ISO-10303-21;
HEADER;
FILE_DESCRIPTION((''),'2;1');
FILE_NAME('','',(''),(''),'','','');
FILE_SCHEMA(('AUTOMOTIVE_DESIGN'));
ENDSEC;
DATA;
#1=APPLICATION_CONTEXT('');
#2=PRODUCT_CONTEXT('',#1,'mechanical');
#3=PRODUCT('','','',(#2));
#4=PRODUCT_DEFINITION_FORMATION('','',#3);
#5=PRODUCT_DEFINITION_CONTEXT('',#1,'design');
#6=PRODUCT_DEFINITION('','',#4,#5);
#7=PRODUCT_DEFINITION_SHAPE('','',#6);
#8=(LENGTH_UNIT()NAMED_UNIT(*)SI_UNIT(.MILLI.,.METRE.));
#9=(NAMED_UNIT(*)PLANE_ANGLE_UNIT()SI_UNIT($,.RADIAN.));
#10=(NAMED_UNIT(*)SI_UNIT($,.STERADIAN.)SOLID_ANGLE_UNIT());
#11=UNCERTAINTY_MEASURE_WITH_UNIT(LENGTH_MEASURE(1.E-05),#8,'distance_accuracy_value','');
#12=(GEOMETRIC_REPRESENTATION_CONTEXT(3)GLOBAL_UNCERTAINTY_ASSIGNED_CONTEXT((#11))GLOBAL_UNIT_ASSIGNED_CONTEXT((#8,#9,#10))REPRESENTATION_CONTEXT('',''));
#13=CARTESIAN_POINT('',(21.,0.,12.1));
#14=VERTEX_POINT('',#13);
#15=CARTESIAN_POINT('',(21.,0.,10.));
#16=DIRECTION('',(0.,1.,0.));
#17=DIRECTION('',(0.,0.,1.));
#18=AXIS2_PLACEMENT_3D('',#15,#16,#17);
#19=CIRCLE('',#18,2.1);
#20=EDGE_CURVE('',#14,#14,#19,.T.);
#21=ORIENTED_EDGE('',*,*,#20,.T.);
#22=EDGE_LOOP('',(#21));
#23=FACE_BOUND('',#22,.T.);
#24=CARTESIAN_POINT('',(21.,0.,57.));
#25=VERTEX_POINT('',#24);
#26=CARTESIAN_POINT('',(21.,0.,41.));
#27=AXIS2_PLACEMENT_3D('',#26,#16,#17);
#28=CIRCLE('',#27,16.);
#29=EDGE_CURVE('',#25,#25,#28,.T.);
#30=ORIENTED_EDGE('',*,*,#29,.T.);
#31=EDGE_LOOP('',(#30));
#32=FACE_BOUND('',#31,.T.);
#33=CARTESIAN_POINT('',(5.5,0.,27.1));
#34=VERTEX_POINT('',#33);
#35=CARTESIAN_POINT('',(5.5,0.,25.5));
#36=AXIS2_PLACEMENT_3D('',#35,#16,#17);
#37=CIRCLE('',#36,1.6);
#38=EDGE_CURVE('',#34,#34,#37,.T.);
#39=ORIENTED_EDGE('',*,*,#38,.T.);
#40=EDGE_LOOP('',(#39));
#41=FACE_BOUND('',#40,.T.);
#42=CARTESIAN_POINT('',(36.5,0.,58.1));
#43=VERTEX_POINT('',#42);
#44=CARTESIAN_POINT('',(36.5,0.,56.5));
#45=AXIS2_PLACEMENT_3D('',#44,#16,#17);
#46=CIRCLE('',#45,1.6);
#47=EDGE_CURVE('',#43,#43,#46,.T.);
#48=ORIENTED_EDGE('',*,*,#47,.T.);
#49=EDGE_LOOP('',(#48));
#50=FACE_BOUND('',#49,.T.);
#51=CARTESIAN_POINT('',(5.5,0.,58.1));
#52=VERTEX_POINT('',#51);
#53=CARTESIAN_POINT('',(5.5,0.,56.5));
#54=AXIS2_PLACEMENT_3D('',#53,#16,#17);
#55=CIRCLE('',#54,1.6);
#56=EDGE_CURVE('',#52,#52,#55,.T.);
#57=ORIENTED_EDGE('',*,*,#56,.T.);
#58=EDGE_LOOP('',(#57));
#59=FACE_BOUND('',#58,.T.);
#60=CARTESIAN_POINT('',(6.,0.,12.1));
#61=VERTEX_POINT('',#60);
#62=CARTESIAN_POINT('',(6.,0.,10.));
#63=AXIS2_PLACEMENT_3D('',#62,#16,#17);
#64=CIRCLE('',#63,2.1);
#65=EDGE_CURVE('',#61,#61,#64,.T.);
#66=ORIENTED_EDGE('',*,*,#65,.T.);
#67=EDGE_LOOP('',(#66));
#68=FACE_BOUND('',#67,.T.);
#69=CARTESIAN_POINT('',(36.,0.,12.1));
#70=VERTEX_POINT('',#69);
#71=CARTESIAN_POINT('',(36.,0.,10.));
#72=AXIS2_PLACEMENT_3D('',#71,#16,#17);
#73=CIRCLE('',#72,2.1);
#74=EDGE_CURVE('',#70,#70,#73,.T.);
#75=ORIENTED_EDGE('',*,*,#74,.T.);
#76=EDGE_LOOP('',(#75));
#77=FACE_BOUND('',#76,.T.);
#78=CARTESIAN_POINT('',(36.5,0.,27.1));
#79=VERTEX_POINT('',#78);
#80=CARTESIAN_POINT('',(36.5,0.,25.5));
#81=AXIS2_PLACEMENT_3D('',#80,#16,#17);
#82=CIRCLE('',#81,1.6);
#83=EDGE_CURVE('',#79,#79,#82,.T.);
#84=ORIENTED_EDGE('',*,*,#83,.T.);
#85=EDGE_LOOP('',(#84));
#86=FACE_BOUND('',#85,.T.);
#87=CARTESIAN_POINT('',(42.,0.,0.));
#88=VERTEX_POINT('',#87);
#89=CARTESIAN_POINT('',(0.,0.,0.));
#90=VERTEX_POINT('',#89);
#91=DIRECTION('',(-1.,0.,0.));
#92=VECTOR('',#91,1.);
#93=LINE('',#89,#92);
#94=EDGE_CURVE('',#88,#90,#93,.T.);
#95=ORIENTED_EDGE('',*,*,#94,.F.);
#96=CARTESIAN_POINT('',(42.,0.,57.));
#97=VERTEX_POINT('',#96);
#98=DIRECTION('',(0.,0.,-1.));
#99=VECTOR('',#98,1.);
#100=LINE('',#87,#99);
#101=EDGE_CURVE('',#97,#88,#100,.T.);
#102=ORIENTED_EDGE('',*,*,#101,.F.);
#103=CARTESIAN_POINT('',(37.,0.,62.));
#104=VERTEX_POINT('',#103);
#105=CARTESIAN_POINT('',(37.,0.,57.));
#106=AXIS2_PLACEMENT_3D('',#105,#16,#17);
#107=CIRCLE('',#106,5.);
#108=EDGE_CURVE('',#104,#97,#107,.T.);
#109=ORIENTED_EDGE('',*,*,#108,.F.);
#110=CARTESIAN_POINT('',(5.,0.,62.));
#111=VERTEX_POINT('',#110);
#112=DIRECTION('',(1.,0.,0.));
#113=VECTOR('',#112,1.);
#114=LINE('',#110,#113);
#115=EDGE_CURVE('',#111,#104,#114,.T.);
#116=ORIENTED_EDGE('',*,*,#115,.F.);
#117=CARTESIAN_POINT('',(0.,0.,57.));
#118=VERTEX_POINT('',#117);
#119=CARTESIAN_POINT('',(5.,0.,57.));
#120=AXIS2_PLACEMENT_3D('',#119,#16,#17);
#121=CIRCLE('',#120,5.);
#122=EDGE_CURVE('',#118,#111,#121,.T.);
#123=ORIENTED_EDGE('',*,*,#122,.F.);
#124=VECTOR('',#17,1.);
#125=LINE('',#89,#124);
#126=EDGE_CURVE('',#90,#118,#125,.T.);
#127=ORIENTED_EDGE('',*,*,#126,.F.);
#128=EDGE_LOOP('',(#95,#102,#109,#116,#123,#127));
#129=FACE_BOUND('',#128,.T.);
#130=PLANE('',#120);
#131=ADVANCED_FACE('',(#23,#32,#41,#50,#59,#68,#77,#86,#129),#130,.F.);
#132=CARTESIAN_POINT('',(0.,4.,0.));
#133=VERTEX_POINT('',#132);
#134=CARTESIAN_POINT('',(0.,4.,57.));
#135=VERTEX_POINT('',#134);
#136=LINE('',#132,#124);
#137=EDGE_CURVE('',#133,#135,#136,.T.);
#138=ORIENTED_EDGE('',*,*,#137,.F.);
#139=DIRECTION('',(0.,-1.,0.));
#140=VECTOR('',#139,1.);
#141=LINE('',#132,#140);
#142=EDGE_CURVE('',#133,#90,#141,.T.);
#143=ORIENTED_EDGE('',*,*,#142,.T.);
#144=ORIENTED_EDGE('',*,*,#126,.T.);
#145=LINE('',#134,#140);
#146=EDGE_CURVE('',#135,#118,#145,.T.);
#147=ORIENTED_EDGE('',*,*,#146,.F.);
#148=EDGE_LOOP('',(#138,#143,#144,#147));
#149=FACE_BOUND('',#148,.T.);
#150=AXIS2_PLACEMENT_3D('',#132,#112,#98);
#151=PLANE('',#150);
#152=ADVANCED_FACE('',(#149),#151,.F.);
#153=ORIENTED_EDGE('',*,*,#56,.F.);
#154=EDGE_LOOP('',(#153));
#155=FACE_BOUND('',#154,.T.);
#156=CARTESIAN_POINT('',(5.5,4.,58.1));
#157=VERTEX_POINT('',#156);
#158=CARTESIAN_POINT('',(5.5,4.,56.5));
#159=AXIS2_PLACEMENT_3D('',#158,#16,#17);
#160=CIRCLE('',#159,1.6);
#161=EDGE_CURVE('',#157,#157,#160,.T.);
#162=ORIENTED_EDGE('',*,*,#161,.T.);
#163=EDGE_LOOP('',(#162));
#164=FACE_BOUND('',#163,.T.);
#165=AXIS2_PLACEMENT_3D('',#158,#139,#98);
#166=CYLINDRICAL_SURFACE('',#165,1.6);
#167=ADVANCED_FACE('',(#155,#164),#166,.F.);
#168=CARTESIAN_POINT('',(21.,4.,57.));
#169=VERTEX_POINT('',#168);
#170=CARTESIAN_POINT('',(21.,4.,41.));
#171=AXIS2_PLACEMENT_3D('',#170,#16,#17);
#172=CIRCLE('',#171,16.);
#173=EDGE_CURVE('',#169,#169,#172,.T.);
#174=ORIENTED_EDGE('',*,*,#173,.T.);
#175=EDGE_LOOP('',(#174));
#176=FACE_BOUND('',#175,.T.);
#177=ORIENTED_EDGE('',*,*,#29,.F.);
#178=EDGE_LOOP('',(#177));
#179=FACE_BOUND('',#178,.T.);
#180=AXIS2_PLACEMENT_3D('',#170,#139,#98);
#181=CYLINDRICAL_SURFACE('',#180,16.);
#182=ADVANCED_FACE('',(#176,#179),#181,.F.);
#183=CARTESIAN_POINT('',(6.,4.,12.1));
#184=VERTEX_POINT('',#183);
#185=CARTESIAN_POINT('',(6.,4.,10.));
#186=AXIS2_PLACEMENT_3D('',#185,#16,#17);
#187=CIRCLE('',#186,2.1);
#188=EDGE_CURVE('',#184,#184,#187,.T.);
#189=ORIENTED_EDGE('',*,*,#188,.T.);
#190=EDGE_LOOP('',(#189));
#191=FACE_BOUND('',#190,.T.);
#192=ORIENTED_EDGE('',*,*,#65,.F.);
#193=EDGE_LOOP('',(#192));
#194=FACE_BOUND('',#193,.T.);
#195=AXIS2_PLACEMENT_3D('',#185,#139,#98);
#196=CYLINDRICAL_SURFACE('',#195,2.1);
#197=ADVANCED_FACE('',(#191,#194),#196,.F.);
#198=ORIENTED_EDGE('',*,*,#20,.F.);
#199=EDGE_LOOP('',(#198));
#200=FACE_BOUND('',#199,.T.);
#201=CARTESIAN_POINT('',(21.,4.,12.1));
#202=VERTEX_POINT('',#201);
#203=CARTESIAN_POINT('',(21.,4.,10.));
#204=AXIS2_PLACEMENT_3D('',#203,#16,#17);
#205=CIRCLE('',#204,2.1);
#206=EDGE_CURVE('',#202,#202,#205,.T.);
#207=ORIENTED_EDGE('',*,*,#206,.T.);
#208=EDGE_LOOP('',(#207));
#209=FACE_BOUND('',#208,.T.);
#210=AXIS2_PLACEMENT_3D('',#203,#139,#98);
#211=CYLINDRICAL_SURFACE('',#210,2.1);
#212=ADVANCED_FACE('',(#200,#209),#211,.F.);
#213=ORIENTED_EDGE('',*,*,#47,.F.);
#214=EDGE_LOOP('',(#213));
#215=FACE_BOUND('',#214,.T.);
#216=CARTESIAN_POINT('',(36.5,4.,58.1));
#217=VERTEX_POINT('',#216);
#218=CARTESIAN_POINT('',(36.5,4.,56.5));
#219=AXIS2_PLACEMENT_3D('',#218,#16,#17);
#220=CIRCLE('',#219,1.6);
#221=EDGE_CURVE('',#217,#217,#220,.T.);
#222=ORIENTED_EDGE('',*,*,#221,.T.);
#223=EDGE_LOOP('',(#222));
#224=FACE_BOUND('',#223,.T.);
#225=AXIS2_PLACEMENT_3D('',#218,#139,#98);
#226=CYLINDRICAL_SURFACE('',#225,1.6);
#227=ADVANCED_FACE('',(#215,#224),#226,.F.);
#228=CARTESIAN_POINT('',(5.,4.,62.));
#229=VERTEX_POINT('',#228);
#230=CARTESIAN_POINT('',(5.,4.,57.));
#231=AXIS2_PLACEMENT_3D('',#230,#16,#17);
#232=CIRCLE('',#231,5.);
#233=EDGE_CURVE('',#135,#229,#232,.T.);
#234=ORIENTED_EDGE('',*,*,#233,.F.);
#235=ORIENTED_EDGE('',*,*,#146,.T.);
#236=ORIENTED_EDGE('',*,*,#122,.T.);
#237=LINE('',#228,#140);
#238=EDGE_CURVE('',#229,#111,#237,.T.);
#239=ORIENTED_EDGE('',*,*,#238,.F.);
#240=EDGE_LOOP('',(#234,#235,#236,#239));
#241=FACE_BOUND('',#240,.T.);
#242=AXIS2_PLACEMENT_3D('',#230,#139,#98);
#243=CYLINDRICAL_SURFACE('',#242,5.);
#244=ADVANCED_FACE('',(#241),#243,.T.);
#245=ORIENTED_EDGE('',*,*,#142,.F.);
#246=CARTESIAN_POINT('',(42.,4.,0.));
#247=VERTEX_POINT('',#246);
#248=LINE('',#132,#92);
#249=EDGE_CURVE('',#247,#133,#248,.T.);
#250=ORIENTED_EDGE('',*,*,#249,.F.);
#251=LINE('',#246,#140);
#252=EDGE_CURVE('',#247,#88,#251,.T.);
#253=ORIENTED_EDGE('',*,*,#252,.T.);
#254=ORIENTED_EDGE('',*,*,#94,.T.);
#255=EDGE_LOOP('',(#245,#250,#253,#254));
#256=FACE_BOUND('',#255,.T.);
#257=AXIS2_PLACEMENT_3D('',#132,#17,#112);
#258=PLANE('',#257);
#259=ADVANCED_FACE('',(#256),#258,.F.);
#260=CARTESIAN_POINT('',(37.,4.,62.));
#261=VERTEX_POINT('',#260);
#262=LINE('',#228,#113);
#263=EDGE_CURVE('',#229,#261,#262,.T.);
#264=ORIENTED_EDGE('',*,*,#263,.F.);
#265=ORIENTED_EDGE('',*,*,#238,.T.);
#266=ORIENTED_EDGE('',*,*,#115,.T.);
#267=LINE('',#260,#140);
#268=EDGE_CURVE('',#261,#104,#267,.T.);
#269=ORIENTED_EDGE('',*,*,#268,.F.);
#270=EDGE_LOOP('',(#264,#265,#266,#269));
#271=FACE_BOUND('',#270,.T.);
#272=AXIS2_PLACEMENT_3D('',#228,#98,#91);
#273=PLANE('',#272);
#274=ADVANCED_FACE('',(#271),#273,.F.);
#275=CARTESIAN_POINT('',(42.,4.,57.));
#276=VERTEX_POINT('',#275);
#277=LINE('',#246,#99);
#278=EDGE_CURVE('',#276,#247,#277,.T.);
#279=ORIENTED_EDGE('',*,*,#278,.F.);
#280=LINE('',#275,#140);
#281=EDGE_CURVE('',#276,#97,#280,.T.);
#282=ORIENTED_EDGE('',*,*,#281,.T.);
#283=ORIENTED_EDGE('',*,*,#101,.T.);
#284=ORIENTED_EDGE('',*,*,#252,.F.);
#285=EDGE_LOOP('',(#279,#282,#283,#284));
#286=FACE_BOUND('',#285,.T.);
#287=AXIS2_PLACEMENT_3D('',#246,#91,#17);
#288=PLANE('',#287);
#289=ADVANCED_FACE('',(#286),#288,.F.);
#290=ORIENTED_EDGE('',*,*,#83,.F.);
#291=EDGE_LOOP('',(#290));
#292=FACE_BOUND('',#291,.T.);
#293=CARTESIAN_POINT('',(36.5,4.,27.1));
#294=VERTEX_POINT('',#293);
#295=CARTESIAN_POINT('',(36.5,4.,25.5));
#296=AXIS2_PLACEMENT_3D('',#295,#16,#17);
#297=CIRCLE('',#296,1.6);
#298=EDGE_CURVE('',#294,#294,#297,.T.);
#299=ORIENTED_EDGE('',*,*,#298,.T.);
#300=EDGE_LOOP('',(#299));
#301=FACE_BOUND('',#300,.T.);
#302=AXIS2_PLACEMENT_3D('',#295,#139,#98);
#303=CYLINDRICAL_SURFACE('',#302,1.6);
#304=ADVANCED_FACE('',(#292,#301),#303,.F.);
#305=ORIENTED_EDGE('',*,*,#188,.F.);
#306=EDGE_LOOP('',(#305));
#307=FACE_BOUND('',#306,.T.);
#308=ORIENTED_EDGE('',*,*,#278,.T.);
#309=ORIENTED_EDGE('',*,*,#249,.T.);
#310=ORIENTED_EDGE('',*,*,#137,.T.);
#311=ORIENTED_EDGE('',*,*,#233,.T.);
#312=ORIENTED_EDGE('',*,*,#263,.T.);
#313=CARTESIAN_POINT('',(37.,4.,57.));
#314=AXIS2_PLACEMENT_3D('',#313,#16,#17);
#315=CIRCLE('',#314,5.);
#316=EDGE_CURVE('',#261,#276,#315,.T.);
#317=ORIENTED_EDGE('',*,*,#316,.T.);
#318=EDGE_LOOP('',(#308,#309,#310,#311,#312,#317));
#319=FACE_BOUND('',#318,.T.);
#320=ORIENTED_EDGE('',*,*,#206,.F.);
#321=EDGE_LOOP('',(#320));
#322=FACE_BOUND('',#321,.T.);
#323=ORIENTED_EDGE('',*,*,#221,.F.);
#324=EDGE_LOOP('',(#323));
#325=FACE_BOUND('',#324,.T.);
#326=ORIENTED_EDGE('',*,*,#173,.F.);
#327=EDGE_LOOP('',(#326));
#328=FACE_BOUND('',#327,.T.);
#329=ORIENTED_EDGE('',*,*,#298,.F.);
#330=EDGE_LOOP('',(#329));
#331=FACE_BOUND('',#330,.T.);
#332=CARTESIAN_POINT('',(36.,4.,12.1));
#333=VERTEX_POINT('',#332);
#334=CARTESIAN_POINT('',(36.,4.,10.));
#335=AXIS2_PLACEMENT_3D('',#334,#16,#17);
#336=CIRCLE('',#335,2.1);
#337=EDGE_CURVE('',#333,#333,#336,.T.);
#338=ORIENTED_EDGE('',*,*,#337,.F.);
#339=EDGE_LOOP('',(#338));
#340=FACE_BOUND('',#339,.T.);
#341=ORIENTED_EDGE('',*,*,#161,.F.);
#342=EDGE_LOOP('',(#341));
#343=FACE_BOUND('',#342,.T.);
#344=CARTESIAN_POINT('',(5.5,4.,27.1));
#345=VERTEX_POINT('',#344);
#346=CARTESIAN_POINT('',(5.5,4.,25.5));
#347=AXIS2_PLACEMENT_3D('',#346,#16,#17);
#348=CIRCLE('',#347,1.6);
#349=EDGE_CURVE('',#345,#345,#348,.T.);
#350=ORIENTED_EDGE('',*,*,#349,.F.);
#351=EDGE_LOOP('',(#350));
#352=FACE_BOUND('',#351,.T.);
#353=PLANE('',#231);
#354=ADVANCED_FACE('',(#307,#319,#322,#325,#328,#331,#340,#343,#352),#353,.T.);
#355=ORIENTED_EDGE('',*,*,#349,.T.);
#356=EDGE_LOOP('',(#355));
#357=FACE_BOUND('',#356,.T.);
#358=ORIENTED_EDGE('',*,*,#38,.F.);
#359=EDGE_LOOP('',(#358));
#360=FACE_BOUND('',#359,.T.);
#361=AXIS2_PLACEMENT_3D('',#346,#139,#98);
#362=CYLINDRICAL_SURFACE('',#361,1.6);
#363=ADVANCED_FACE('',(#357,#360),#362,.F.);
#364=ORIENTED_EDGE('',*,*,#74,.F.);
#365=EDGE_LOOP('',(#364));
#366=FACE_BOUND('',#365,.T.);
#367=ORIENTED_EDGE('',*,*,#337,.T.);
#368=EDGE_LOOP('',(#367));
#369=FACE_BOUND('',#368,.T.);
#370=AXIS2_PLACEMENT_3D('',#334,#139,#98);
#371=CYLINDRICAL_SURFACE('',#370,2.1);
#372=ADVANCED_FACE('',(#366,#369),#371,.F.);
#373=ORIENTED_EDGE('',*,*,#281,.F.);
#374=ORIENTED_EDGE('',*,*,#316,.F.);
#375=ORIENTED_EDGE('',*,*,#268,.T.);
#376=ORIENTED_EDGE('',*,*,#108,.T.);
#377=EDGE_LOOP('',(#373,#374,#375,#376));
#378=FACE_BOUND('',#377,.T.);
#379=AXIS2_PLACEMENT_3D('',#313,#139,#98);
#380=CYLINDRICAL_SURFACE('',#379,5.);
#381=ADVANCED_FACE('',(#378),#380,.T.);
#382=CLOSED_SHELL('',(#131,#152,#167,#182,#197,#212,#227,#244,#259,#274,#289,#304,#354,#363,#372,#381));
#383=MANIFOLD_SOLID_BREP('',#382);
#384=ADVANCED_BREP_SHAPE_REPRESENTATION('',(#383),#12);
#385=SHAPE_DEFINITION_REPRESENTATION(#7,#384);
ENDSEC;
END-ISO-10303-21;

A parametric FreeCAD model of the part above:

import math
import FreeCAD as App
import Part
import Sketcher
Q = App.Units.Quantity

doc = App.newDocument("Part")
body = doc.addObject("PartDesign::Body", "Body")

# Sketch on XZ plane
sketch1 = body.newObject("Sketcher::SketchObject", "Sketch")
sketch1.AttachmentSupport = (doc.getObject("XZ_Plane"), [""])
sketch1.MapMode = "FlatFace"
sketch1.addGeometry([
    Part.LineSegment(App.Vector(42, 0, 0), App.Vector(0, 0, 0)),  # 0
    Part.LineSegment(App.Vector(0, 0, 0), App.Vector(0, 57, 0)),  # 1
    Part.ArcOfCircle(Part.Circle(App.Vector(5, 57, 0), App.Vector(0, 0, 1), 5), math.radians(90), math.radians(180)),  # 2
    Part.LineSegment(App.Vector(5, 62, 0), App.Vector(37, 62, 0)),  # 3
    Part.ArcOfCircle(Part.Circle(App.Vector(37, 57, 0), App.Vector(0, 0, 1), 5), math.radians(0), math.radians(90)),  # 4
    Part.LineSegment(App.Vector(42, 57, 0), App.Vector(42, 0, 0)),  # 5
    Part.Circle(App.Vector(36.5, 56.5, 0), App.Vector(0, 0, 1), 1.6),  # 6
    Part.Circle(App.Vector(5.5, 56.5, 0), App.Vector(0, 0, 1), 1.6),  # 7
    Part.Circle(App.Vector(21, 41, 0), App.Vector(0, 0, 1), 16),  # 8
    Part.Circle(App.Vector(36.5, 25.5, 0), App.Vector(0, 0, 1), 1.6),  # 9
    Part.Circle(App.Vector(36, 10, 0), App.Vector(0, 0, 1), 2.1),  # 10
    Part.Circle(App.Vector(5.5, 25.5, 0), App.Vector(0, 0, 1), 1.6),  # 11
    Part.Circle(App.Vector(21, 10, 0), App.Vector(0, 0, 1), 2.1),  # 12
    Part.Circle(App.Vector(6, 10, 0), App.Vector(0, 0, 1), 2.1),  # 13
], False)
sketch1.addConstraint([
    Sketcher.Constraint("Coincident", 0, 2, 1, 1),
    Sketcher.Constraint("Tangent", 1, 2, 2, 2),
    Sketcher.Constraint("Tangent", 2, 1, 3, 1),
    Sketcher.Constraint("Tangent", 3, 2, 4, 2),
    Sketcher.Constraint("Tangent", 4, 1, 5, 1),
    Sketcher.Constraint("Coincident", 5, 2, 0, 1),
    Sketcher.Constraint("Horizontal", 0),
    Sketcher.Constraint("Vertical", 1),
    Sketcher.Constraint("Horizontal", 3),
    Sketcher.Constraint("Vertical", 5),
    Sketcher.Constraint("Coincident", 0, 2, -1, 1),
    Sketcher.Constraint("Equal", 2, 4),
    Sketcher.Constraint("Equal", 6, 7),
    Sketcher.Constraint("Equal", 7, 9),
    Sketcher.Constraint("Equal", 9, 11),
    Sketcher.Constraint("Equal", 10, 12),
    Sketcher.Constraint("Equal", 12, 13),
    Sketcher.Constraint("Horizontal", 6, 3, 7, 3),
    Sketcher.Constraint("Horizontal", 9, 3, 11, 3),
    Sketcher.Constraint("Horizontal", 10, 3, 12, 3),
    Sketcher.Constraint("Horizontal", 12, 3, 13, 3),
    Sketcher.Constraint("Vertical", 6, 3, 9, 3),
    Sketcher.Constraint("Vertical", 7, 3, 11, 3),
    Sketcher.Constraint("Vertical", 8, 3, 12, 3),
    Sketcher.Constraint("Diameter", 8, Q("32 mm")),
    Sketcher.Constraint("Radius", 2, Q("5 mm")),
    Sketcher.Constraint("Diameter", 6, Q("3.2 mm")),
    Sketcher.Constraint("Diameter", 10, Q("4.2 mm")),
    Sketcher.Constraint("DistanceX", 0, 2, 0, 1, Q("42 mm")),
    Sketcher.Constraint("DistanceY", 1, 1, 1, 2, Q("57 mm")),
    Sketcher.Constraint("DistanceX", -1, 1, 8, 3, Q("21 mm")),
    Sketcher.Constraint("DistanceY", -1, 1, 8, 3, Q("41 mm")),
    Sketcher.Constraint("DistanceX", -1, 1, 10, 3, Q("36 mm")),
    Sketcher.Constraint("DistanceY", -1, 1, 10, 3, Q("10 mm")),
    Sketcher.Constraint("DistanceX", -1, 1, 13, 3, Q("6 mm")),
    Sketcher.Constraint("DistanceX", 7, 3, 6, 3, Q("31 mm")),
    Sketcher.Constraint("DistanceY", 9, 3, 6, 3, Q("31 mm")),
    Sketcher.Constraint("DistanceX", -1, 1, 6, 3, Q("36.5 mm")),
    Sketcher.Constraint("DistanceY", -1, 1, 6, 3, Q("56.5 mm")),
])
pad1 = body.newObject("PartDesign::Pad", "Pad")
pad1.Profile = sketch1
pad1.Length = 4
pad1.Reversed = True

doc.recompute()
